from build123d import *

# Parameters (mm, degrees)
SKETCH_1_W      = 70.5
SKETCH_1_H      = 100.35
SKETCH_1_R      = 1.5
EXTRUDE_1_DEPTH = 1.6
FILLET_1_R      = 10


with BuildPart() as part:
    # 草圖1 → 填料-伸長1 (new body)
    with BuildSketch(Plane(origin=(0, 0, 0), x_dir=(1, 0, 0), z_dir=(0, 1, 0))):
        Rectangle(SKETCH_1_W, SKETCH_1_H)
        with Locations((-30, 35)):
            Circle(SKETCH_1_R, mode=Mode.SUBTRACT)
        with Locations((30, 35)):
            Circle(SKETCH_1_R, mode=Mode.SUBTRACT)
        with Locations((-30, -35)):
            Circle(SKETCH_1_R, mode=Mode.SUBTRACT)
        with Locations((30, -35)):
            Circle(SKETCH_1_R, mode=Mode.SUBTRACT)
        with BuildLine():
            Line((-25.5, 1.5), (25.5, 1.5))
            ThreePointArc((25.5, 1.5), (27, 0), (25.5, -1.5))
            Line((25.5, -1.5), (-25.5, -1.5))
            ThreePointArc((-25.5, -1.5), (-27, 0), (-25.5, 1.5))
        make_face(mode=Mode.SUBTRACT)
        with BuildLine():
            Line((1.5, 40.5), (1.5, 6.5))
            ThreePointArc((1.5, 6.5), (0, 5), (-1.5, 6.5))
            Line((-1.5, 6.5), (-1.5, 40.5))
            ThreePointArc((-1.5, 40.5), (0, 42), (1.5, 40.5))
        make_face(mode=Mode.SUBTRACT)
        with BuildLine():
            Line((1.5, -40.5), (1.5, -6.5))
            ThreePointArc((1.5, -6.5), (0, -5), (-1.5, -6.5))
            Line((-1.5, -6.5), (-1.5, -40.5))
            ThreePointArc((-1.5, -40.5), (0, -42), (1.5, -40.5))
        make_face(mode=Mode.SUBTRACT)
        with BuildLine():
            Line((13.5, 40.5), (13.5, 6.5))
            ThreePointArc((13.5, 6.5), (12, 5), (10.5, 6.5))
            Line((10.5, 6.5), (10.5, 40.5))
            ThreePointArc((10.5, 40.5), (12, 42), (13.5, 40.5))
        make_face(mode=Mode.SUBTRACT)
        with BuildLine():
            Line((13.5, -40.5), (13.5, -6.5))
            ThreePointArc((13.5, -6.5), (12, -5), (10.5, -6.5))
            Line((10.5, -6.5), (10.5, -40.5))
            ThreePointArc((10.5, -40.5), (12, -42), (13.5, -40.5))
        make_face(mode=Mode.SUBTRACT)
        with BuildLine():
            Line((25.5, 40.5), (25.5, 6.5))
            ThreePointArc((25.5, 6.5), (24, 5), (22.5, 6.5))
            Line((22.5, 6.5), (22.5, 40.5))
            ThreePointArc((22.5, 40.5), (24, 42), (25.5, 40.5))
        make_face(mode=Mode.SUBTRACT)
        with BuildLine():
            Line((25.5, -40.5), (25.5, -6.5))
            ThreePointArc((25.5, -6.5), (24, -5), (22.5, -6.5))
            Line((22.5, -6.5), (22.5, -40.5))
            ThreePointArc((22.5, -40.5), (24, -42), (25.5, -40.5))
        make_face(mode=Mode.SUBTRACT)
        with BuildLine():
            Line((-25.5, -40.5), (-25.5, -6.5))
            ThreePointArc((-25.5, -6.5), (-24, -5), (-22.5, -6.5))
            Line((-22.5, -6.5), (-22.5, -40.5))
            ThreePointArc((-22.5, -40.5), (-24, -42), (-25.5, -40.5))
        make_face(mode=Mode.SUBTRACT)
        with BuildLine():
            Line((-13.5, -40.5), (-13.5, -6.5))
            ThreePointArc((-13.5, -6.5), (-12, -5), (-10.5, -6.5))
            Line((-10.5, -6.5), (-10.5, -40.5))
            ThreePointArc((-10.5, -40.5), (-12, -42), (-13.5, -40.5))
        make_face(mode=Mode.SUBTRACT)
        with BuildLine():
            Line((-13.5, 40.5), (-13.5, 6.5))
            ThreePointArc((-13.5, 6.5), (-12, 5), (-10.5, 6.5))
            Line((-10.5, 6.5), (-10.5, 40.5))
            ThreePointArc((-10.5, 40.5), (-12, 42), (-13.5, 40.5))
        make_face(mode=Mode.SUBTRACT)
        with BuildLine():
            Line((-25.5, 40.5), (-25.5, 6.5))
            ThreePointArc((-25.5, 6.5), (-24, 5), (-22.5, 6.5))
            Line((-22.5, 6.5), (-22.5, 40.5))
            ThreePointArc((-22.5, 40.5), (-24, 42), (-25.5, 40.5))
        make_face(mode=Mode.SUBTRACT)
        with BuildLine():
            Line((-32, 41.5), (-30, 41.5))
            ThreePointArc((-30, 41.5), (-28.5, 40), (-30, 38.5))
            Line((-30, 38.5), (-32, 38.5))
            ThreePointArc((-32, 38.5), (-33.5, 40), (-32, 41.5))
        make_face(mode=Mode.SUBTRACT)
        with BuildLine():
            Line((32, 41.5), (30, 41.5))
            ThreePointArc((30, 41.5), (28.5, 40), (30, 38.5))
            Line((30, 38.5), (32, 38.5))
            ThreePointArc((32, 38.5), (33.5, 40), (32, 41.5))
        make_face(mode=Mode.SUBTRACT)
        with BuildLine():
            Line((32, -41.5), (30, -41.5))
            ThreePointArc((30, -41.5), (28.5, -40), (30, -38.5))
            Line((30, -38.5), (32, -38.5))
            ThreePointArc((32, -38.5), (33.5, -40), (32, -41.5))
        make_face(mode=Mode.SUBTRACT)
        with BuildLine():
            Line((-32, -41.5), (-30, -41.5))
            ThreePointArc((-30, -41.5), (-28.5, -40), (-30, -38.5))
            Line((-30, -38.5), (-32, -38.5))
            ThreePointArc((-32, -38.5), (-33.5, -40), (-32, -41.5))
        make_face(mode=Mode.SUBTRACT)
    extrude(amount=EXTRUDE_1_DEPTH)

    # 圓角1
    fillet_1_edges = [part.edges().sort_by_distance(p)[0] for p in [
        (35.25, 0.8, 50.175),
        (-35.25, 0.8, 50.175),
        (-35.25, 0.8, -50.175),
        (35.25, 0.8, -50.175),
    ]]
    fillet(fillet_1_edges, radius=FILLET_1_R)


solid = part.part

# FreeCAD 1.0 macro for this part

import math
import FreeCAD as App
import Part
import Sketcher
from FreeCAD import Vector


def edges_at(feature, points):
    """Names of the edges that pass closest to the given points."""
    edges = feature.Shape.Edges
    near = lambda p: min(range(len(edges)), key=lambda i: edges[i].distToShape(Part.Vertex(*p))[0])
    return sorted({f"Edge{near(p) + 1}" for p in points})

doc = App.newDocument("Part")
body = doc.addObject("PartDesign::Body", "Body")

# Sketch on XZ plane
sketch1 = doc.addObject("Sketcher::SketchObject", "Sketch")
body.addObject(sketch1)
sketch1.AttachmentSupport = (doc.XZ_Plane, [""])
sketch1.MapMode = "FlatFace"
sketch1.addGeometry([
    Part.LineSegment(Vector(-35.2, -50.2, 0), Vector(-35.2, 50.2, 0)),  # 0
    Part.LineSegment(Vector(-35.2, 50.2, 0), Vector(35.2, 50.2, 0)),  # 1
    Part.LineSegment(Vector(35.2, 50.2, 0), Vector(35.2, -50.2, 0)),  # 2
    Part.LineSegment(Vector(35.2, -50.2, 0), Vector(-35.2, -50.2, 0)),  # 3
    Part.LineSegment(Vector(-30, 41.5, 0), Vector(-32, 41.5, 0)),  # 4
    Part.ArcOfCircle(Part.Circle(Vector(-32, 40, 0), Vector(0, 0, 1), 1.5), math.radians(90), math.radians(270)),  # 5
    Part.LineSegment(Vector(-32, 38.5, 0), Vector(-30, 38.5, 0)),  # 6
    Part.ArcOfCircle(Part.Circle(Vector(-30, 40, 0), Vector(0, 0, 1), 1.5), math.radians(-90), math.radians(90)),  # 7
    Part.Circle(Vector(-30, 35, 0), Vector(0, 0, 1), 1.5),  # 8
    Part.ArcOfCircle(Part.Circle(Vector(-24, 40.5, 0), Vector(0, 0, 1), 1.5), math.radians(0), math.radians(180)),  # 9
    Part.LineSegment(Vector(-25.5, 40.5, 0), Vector(-25.5, 6.5, 0)),  # 10
    Part.ArcOfCircle(Part.Circle(Vector(-24, 6.5, 0), Vector(0, 0, 1), 1.5), math.radians(180), math.radians(360)),  # 11
    Part.LineSegment(Vector(-22.5, 6.5, 0), Vector(-22.5, 40.5, 0)),  # 12
    Part.ArcOfCircle(Part.Circle(Vector(-12, 40.5, 0), Vector(0, 0, 1), 1.5), math.radians(0), math.radians(180)),  # 13
    Part.LineSegment(Vector(-13.5, 40.5, 0), Vector(-13.5, 6.5, 0)),  # 14
    Part.ArcOfCircle(Part.Circle(Vector(-12, 6.5, 0), Vector(0, 0, 1), 1.5), math.radians(180), math.radians(360)),  # 15
    Part.LineSegment(Vector(-10.5, 6.5, 0), Vector(-10.5, 40.5, 0)),  # 16
    Part.LineSegment(Vector(1.5, 6.5, 0), Vector(1.5, 40.5, 0)),  # 17
    Part.ArcOfCircle(Part.Circle(Vector(0, 40.5, 0), Vector(0, 0, 1), 1.5), math.radians(0), math.radians(180)),  # 18
    Part.LineSegment(Vector(-1.5, 40.5, 0), Vector(-1.5, 6.5, 0)),  # 19
    Part.ArcOfCircle(Part.Circle(Vector(0, 6.5, 0), Vector(0, 0, 1), 1.5), math.radians(180), math.radians(360)),  # 20
    Part.LineSegment(Vector(13.5, 6.5, 0), Vector(13.5, 40.5, 0)),  # 21
    Part.ArcOfCircle(Part.Circle(Vector(12, 40.5, 0), Vector(0, 0, 1), 1.5), math.radians(0), math.radians(180)),  # 22
    Part.LineSegment(Vector(10.5, 40.5, 0), Vector(10.5, 6.5, 0)),  # 23
    Part.ArcOfCircle(Part.Circle(Vector(12, 6.5, 0), Vector(0, 0, 1), 1.5), math.radians(180), math.radians(360)),  # 24
    Part.ArcOfCircle(Part.Circle(Vector(32, 40, 0), Vector(0, 0, 1), 1.5), math.radians(-90), math.radians(90)),  # 25
    Part.LineSegment(Vector(32, 41.5, 0), Vector(30, 41.5, 0)),  # 26
    Part.ArcOfCircle(Part.Circle(Vector(30, 40, 0), Vector(0, 0, 1), 1.5), math.radians(90), math.radians(270)),  # 27
    Part.LineSegment(Vector(30, 38.5, 0), Vector(32, 38.5, 0)),  # 28
    Part.Circle(Vector(30, 35, 0), Vector(0, 0, 1), 1.5),  # 29
    Part.LineSegment(Vector(25.5, 6.5, 0), Vector(25.5, 40.5, 0)),  # 30
    Part.ArcOfCircle(Part.Circle(Vector(24, 40.5, 0), Vector(0, 0, 1), 1.5), math.radians(0), math.radians(180)),  # 31
    Part.LineSegment(Vector(22.5, 40.5, 0), Vector(22.5, 6.5, 0)),  # 32
    Part.ArcOfCircle(Part.Circle(Vector(24, 6.5, 0), Vector(0, 0, 1), 1.5), math.radians(180), math.radians(360)),  # 33
    Part.LineSegment(Vector(-25.5, -6.5, 0), Vector(-25.5, -40.5, 0)),  # 34
    Part.ArcOfCircle(Part.Circle(Vector(-24, -40.5, 0), Vector(0, 0, 1), 1.5), math.radians(180), math.radians(360)),  # 35
    Part.LineSegment(Vector(-22.5, -40.5, 0), Vector(-22.5, -6.5, 0)),  # 36
    Part.ArcOfCircle(Part.Circle(Vector(-24, -6.5, 0), Vector(0, 0, 1), 1.5), math.radians(0), math.radians(180)),  # 37
    Part.Circle(Vector(-30, -35, 0), Vector(0, 0, 1), 1.5),  # 38
    Part.ArcOfCircle(Part.Circle(Vector(-32, -40, 0), Vector(0, 0, 1), 1.5), math.radians(90), math.radians(270)),  # 39
    Part.LineSegment(Vector(-32, -41.5, 0), Vector(-30, -41.5, 0)),  # 40
    Part.ArcOfCircle(Part.Circle(Vector(-30, -40, 0), Vector(0, 0, 1), 1.5), math.radians(-90), math.radians(90)),  # 41
    Part.LineSegment(Vector(-30, -38.5, 0), Vector(-32, -38.5, 0)),  # 42
    Part.LineSegment(Vector(-13.5, -6.5, 0), Vector(-13.5, -40.5, 0)),  # 43
    Part.ArcOfCircle(Part.Circle(Vector(-12, -40.5, 0), Vector(0, 0, 1), 1.5), math.radians(180), math.radians(360)),  # 44
    Part.LineSegment(Vector(-10.5, -40.5, 0), Vector(-10.5, -6.5, 0)),  # 45
    Part.ArcOfCircle(Part.Circle(Vector(-12, -6.5, 0), Vector(0, 0, 1), 1.5), math.radians(0), math.radians(180)),  # 46
    Part.ArcOfCircle(Part.Circle(Vector(-25.5, 0, 0), Vector(0, 0, 1), 1.5), math.radians(90), math.radians(270)),  # 47
    Part.LineSegment(Vector(-25.5, -1.5, 0), Vector(25.5, -1.5, 0)),  # 48
    Part.ArcOfCircle(Part.Circle(Vector(25.5, 0, 0), Vector(0, 0, 1), 1.5), math.radians(-90), math.radians(90)),  # 49
    Part.LineSegment(Vector(25.5, 1.5, 0), Vector(-25.5, 1.5, 0)),  # 50
    Part.ArcOfCircle(Part.Circle(Vector(0, -40.5, 0), Vector(0, 0, 1), 1.5), math.radians(180), math.radians(360)),  # 51
    Part.LineSegment(Vector(1.5, -40.5, 0), Vector(1.5, -6.5, 0)),  # 52
    Part.ArcOfCircle(Part.Circle(Vector(0, -6.5, 0), Vector(0, 0, 1), 1.5), math.radians(0), math.radians(180)),  # 53
    Part.LineSegment(Vector(-1.5, -6.5, 0), Vector(-1.5, -40.5, 0)),  # 54
    Part.ArcOfCircle(Part.Circle(Vector(12, -40.5, 0), Vector(0, 0, 1), 1.5), math.radians(180), math.radians(360)),  # 55
    Part.LineSegment(Vector(13.5, -40.5, 0), Vector(13.5, -6.5, 0)),  # 56
    Part.ArcOfCircle(Part.Circle(Vector(12, -6.5, 0), Vector(0, 0, 1), 1.5), math.radians(0), math.radians(180)),  # 57
    Part.LineSegment(Vector(10.5, -6.5, 0), Vector(10.5, -40.5, 0)),  # 58
    Part.ArcOfCircle(Part.Circle(Vector(24, -40.5, 0), Vector(0, 0, 1), 1.5), math.radians(180), math.radians(360)),  # 59
    Part.LineSegment(Vector(25.5, -40.5, 0), Vector(25.5, -6.5, 0)),  # 60
    Part.ArcOfCircle(Part.Circle(Vector(24, -6.5, 0), Vector(0, 0, 1), 1.5), math.radians(0), math.radians(180)),  # 61
    Part.LineSegment(Vector(22.5, -6.5, 0), Vector(22.5, -40.5, 0)),  # 62
    Part.Circle(Vector(30, -35, 0), Vector(0, 0, 1), 1.5),  # 63
    Part.LineSegment(Vector(30, -41.5, 0), Vector(32, -41.5, 0)),  # 64
    Part.ArcOfCircle(Part.Circle(Vector(32, -40, 0), Vector(0, 0, 1), 1.5), math.radians(-90), math.radians(90)),  # 65
    Part.LineSegment(Vector(32, -38.5, 0), Vector(30, -38.5, 0)),  # 66
    Part.ArcOfCircle(Part.Circle(Vector(30, -40, 0), Vector(0, 0, 1), 1.5), math.radians(90), math.radians(270)),  # 67
], False)
sketch1.addConstraint([
    Sketcher.Constraint("Coincident", 0, 2, 1, 1),
    Sketcher.Constraint("Coincident", 1, 2, 2, 1),
    Sketcher.Constraint("Coincident", 2, 2, 3, 1),
    Sketcher.Constraint("Coincident", 3, 2, 0, 1),
    Sketcher.Constraint("Tangent", 4, 2, 5, 1),
    Sketcher.Constraint("Tangent", 5, 2, 6, 1),
    Sketcher.Constraint("Tangent", 6, 2, 7, 1),
    Sketcher.Constraint("Tangent", 7, 2, 4, 1),
    Sketcher.Constraint("Tangent", 9, 2, 10, 1),
    Sketcher.Constraint("Tangent", 10, 2, 11, 1),
    Sketcher.Constraint("Tangent", 11, 2, 12, 1),
    Sketcher.Constraint("Tangent", 12, 2, 9, 1),
    Sketcher.Constraint("Tangent", 13, 2, 14, 1),
    Sketcher.Constraint("Tangent", 14, 2, 15, 1),
    Sketcher.Constraint("Tangent", 15, 2, 16, 1),
    Sketcher.Constraint("Tangent", 16, 2, 13, 1),
    Sketcher.Constraint("Tangent", 17, 2, 18, 1),
    Sketcher.Constraint("Tangent", 18, 2, 19, 1),
    Sketcher.Constraint("Tangent", 19, 2, 20, 1),
    Sketcher.Constraint("Tangent", 20, 2, 17, 1),
    Sketcher.Constraint("Tangent", 21, 2, 22, 1),
    Sketcher.Constraint("Tangent", 22, 2, 23, 1),
    Sketcher.Constraint("Tangent", 23, 2, 24, 1),
    Sketcher.Constraint("Tangent", 24, 2, 21, 1),
    Sketcher.Constraint("Tangent", 25, 2, 26, 1),
    Sketcher.Constraint("Tangent", 26, 2, 27, 1),
    Sketcher.Constraint("Tangent", 27, 2, 28, 1),
    Sketcher.Constraint("Tangent", 28, 2, 25, 1),
    Sketcher.Constraint("Tangent", 30, 2, 31, 1),
    Sketcher.Constraint("Tangent", 31, 2, 32, 1),
    Sketcher.Constraint("Tangent", 32, 2, 33, 1),
    Sketcher.Constraint("Tangent", 33, 2, 30, 1),
    Sketcher.Constraint("Tangent", 34, 2, 35, 1),
    Sketcher.Constraint("Tangent", 35, 2, 36, 1),
    Sketcher.Constraint("Tangent", 36, 2, 37, 1),
    Sketcher.Constraint("Tangent", 37, 2, 34, 1),
    Sketcher.Constraint("Tangent", 39, 2, 40, 1),
    Sketcher.Constraint("Tangent", 40, 2, 41, 1),
    Sketcher.Constraint("Tangent", 41, 2, 42, 1),
    Sketcher.Constraint("Tangent", 42, 2, 39, 1),
    Sketcher.Constraint("Tangent", 43, 2, 44, 1),
    Sketcher.Constraint("Tangent", 44, 2, 45, 1),
    Sketcher.Constraint("Tangent", 45, 2, 46, 1),
    Sketcher.Constraint("Tangent", 46, 2, 43, 1),
    Sketcher.Constraint("Tangent", 47, 2, 48, 1),
    Sketcher.Constraint("Tangent", 48, 2, 49, 1),
    Sketcher.Constraint("Tangent", 49, 2, 50, 1),
    Sketcher.Constraint("Tangent", 50, 2, 47, 1),
    Sketcher.Constraint("Tangent", 51, 2, 52, 1),
    Sketcher.Constraint("Tangent", 52, 2, 53, 1),
    Sketcher.Constraint("Tangent", 53, 2, 54, 1),
    Sketcher.Constraint("Tangent", 54, 2, 51, 1),
    Sketcher.Constraint("Tangent", 55, 2, 56, 1),
    Sketcher.Constraint("Tangent", 56, 2, 57, 1),
    Sketcher.Constraint("Tangent", 57, 2, 58, 1),
    Sketcher.Constraint("Tangent", 58, 2, 55, 1),
    Sketcher.Constraint("Tangent", 59, 2, 60, 1),
    Sketcher.Constraint("Tangent", 60, 2, 61, 1),
    Sketcher.Constraint("Tangent", 61, 2, 62, 1),
    Sketcher.Constraint("Tangent", 62, 2, 59, 1),
    Sketcher.Constraint("Tangent", 64, 2, 65, 1),
    Sketcher.Constraint("Tangent", 65, 2, 66, 1),
    Sketcher.Constraint("Tangent", 66, 2, 67, 1),
    Sketcher.Constraint("Tangent", 67, 2, 64, 1),
    Sketcher.Constraint("Vertical", 0),
    Sketcher.Constraint("Horizontal", 1),
    Sketcher.Constraint("Vertical", 2),
    Sketcher.Constraint("Horizontal", 3),
    Sketcher.Constraint("Horizontal", 4),
    Sketcher.Constraint("Horizontal", 6),
    Sketcher.Constraint("Vertical", 10),
    Sketcher.Constraint("Vertical", 12),
    Sketcher.Constraint("Vertical", 14),
    Sketcher.Constraint("Vertical", 16),
    Sketcher.Constraint("Vertical", 17),
    Sketcher.Constraint("Vertical", 19),
    Sketcher.Constraint("Vertical", 21),
    Sketcher.Constraint("Vertical", 23),
    Sketcher.Constraint("Horizontal", 26),
    Sketcher.Constraint("Horizontal", 28),
    Sketcher.Constraint("Vertical", 30),
    Sketcher.Constraint("Vertical", 32),
    Sketcher.Constraint("Vertical", 34),
    Sketcher.Constraint("Vertical", 36),
    Sketcher.Constraint("Horizontal", 40),
    Sketcher.Constraint("Horizontal", 42),
    Sketcher.Constraint("Vertical", 43),
    Sketcher.Constraint("Vertical", 45),
    Sketcher.Constraint("Horizontal", 48),
    Sketcher.Constraint("Horizontal", 50),
    Sketcher.Constraint("Vertical", 52),
    Sketcher.Constraint("Vertical", 54),
    Sketcher.Constraint("Vertical", 56),
    Sketcher.Constraint("Vertical", 58),
    Sketcher.Constraint("Vertical", 60),
    Sketcher.Constraint("Vertical", 62),
    Sketcher.Constraint("Horizontal", 64),
    Sketcher.Constraint("Horizontal", 66),
    Sketcher.Constraint("Equal", 7, 8),
    Sketcher.Constraint("Equal", 8, 9),
    Sketcher.Constraint("Equal", 11, 13),
    Sketcher.Constraint("Equal", 15, 18),
    Sketcher.Constraint("Equal", 20, 22),
    Sketcher.Constraint("Equal", 24, 25),
    Sketcher.Constraint("Equal", 27, 29),
    Sketcher.Constraint("Equal", 29, 31),
    Sketcher.Constraint("Equal", 33, 35),
    Sketcher.Constraint("Equal", 37, 38),
    Sketcher.Constraint("Equal", 38, 39),
    Sketcher.Constraint("Equal", 41, 44),
    Sketcher.Constraint("Equal", 46, 47),
    Sketcher.Constraint("Equal", 49, 51),
    Sketcher.Constraint("Equal", 53, 55),
    Sketcher.Constraint("Equal", 57, 59),
    Sketcher.Constraint("Equal", 61, 63),
    Sketcher.Constraint("Equal", 63, 65),
    Sketcher.Constraint("Symmetric", 31, 3, 35, 3, -1, 1),
    Sketcher.Constraint("Symmetric", 29, 3, 38, 3, -1, 1),
    Sketcher.Constraint("Symmetric", 25, 3, 39, 3, -1, 1),
    Sketcher.Constraint("Symmetric", 22, 3, 44, 3, -1, 1),
    Sketcher.Constraint("Symmetric", 47, 3, 49, 3, -1, 1),
    Sketcher.Constraint("Symmetric", 18, 3, 51, 3, -1, 1),
    Sketcher.Constraint("Symmetric", 13, 3, 55, 3, -1, 1),
    Sketcher.Constraint("Symmetric", 9, 3, 59, 3, -1, 1),
    Sketcher.Constraint("Symmetric", 8, 3, 63, 3, -1, 1),
    Sketcher.Constraint("Symmetric", 5, 3, 65, 3, -1, 1),
    Sketcher.Constraint("Symmetric", 0, 2, 2, 2, -1, 1),
    Sketcher.Constraint("Symmetric", 13, 3, 22, 3, -2),
    Sketcher.Constraint("Symmetric", 5, 3, 25, 3, -2),
    Sketcher.Constraint("Symmetric", 8, 3, 29, 3, -2),
    Sketcher.Constraint("Symmetric", 9, 3, 31, 3, -2),
    Sketcher.Constraint("Symmetric", 20, 3, 53, 3, -1),
    Sketcher.Constraint("Horizontal", 9, 3, 13, 3),
    Sketcher.Constraint("Horizontal", 11, 3, 15, 3),
    Sketcher.Constraint("Horizontal", 13, 3, 18, 3),
    Sketcher.Constraint("Horizontal", 15, 3, 20, 3),
    Sketcher.Constraint("Horizontal", 20, 3, 24, 3),
    Sketcher.Constraint("Horizontal", 24, 3, 33, 3),
    Sketcher.Constraint("Horizontal", 37, 3, 46, 3),
    Sketcher.Constraint("Horizontal", 46, 3, 53, 3),
    Sketcher.Constraint("Horizontal", 53, 3, 57, 3),
    Sketcher.Constraint("Horizontal", 57, 3, 61, 3),
    Sketcher.Constraint("Vertical", 7, 3, 8, 3),
    Sketcher.Constraint("Vertical", 27, 3, 29, 3),
    Sketcher.Constraint("Vertical", 38, 3, 41, 3),
    Sketcher.Constraint("Vertical", 63, 3, 67, 3),
    Sketcher.Constraint("Vertical", 47, 3, 9, 2),
    Sketcher.Constraint("Diameter", 8, 3.0),
    Sketcher.Constraint("DistanceX", 4, 2, 4, 1, 2.0),
    Sketcher.Constraint("DistanceX", 48, 1, 48, 2, 51.0),
    Sketcher.Constraint("DistanceY", 10, 2, 10, 1, 34.0),
    Sketcher.Constraint("DistanceX", 1, 1, 1, 2, 70.5),
    Sketcher.Constraint("DistanceX", 5, 3, -1, 1, 32.0),
    Sketcher.Constraint("DistanceY", -1, 1, 5, 3, 40.0),
    Sketcher.Constraint("DistanceY", -1, 1, 8, 3, 35.0),
    Sketcher.Constraint("DistanceX", 13, 3, -1, 1, 12.0),
    Sketcher.Constraint("DistanceY", 0, 1, 0, 2, 100.35),
    Sketcher.Constraint("DistanceY", -1, 1, 9, 3, 40.5),
])
pad1 = doc.addObject("PartDesign::Pad", "Pad")
body.addObject(pad1)
pad1.Profile = sketch1
pad1.Length = 1.6
pad1.Reversed = True
doc.recompute()

fillet = doc.addObject("PartDesign::Fillet", "Fillet")
body.addObject(fillet)
fillet.Base = (pad1, edges_at(pad1, [
    (35.25, 0.8, 50.175),
    (-35.25, 0.8, 50.175),
    (-35.25, 0.8, -50.175),
    (35.25, 0.8, -50.175),
]))
fillet.Radius = 10

doc.recompute()
